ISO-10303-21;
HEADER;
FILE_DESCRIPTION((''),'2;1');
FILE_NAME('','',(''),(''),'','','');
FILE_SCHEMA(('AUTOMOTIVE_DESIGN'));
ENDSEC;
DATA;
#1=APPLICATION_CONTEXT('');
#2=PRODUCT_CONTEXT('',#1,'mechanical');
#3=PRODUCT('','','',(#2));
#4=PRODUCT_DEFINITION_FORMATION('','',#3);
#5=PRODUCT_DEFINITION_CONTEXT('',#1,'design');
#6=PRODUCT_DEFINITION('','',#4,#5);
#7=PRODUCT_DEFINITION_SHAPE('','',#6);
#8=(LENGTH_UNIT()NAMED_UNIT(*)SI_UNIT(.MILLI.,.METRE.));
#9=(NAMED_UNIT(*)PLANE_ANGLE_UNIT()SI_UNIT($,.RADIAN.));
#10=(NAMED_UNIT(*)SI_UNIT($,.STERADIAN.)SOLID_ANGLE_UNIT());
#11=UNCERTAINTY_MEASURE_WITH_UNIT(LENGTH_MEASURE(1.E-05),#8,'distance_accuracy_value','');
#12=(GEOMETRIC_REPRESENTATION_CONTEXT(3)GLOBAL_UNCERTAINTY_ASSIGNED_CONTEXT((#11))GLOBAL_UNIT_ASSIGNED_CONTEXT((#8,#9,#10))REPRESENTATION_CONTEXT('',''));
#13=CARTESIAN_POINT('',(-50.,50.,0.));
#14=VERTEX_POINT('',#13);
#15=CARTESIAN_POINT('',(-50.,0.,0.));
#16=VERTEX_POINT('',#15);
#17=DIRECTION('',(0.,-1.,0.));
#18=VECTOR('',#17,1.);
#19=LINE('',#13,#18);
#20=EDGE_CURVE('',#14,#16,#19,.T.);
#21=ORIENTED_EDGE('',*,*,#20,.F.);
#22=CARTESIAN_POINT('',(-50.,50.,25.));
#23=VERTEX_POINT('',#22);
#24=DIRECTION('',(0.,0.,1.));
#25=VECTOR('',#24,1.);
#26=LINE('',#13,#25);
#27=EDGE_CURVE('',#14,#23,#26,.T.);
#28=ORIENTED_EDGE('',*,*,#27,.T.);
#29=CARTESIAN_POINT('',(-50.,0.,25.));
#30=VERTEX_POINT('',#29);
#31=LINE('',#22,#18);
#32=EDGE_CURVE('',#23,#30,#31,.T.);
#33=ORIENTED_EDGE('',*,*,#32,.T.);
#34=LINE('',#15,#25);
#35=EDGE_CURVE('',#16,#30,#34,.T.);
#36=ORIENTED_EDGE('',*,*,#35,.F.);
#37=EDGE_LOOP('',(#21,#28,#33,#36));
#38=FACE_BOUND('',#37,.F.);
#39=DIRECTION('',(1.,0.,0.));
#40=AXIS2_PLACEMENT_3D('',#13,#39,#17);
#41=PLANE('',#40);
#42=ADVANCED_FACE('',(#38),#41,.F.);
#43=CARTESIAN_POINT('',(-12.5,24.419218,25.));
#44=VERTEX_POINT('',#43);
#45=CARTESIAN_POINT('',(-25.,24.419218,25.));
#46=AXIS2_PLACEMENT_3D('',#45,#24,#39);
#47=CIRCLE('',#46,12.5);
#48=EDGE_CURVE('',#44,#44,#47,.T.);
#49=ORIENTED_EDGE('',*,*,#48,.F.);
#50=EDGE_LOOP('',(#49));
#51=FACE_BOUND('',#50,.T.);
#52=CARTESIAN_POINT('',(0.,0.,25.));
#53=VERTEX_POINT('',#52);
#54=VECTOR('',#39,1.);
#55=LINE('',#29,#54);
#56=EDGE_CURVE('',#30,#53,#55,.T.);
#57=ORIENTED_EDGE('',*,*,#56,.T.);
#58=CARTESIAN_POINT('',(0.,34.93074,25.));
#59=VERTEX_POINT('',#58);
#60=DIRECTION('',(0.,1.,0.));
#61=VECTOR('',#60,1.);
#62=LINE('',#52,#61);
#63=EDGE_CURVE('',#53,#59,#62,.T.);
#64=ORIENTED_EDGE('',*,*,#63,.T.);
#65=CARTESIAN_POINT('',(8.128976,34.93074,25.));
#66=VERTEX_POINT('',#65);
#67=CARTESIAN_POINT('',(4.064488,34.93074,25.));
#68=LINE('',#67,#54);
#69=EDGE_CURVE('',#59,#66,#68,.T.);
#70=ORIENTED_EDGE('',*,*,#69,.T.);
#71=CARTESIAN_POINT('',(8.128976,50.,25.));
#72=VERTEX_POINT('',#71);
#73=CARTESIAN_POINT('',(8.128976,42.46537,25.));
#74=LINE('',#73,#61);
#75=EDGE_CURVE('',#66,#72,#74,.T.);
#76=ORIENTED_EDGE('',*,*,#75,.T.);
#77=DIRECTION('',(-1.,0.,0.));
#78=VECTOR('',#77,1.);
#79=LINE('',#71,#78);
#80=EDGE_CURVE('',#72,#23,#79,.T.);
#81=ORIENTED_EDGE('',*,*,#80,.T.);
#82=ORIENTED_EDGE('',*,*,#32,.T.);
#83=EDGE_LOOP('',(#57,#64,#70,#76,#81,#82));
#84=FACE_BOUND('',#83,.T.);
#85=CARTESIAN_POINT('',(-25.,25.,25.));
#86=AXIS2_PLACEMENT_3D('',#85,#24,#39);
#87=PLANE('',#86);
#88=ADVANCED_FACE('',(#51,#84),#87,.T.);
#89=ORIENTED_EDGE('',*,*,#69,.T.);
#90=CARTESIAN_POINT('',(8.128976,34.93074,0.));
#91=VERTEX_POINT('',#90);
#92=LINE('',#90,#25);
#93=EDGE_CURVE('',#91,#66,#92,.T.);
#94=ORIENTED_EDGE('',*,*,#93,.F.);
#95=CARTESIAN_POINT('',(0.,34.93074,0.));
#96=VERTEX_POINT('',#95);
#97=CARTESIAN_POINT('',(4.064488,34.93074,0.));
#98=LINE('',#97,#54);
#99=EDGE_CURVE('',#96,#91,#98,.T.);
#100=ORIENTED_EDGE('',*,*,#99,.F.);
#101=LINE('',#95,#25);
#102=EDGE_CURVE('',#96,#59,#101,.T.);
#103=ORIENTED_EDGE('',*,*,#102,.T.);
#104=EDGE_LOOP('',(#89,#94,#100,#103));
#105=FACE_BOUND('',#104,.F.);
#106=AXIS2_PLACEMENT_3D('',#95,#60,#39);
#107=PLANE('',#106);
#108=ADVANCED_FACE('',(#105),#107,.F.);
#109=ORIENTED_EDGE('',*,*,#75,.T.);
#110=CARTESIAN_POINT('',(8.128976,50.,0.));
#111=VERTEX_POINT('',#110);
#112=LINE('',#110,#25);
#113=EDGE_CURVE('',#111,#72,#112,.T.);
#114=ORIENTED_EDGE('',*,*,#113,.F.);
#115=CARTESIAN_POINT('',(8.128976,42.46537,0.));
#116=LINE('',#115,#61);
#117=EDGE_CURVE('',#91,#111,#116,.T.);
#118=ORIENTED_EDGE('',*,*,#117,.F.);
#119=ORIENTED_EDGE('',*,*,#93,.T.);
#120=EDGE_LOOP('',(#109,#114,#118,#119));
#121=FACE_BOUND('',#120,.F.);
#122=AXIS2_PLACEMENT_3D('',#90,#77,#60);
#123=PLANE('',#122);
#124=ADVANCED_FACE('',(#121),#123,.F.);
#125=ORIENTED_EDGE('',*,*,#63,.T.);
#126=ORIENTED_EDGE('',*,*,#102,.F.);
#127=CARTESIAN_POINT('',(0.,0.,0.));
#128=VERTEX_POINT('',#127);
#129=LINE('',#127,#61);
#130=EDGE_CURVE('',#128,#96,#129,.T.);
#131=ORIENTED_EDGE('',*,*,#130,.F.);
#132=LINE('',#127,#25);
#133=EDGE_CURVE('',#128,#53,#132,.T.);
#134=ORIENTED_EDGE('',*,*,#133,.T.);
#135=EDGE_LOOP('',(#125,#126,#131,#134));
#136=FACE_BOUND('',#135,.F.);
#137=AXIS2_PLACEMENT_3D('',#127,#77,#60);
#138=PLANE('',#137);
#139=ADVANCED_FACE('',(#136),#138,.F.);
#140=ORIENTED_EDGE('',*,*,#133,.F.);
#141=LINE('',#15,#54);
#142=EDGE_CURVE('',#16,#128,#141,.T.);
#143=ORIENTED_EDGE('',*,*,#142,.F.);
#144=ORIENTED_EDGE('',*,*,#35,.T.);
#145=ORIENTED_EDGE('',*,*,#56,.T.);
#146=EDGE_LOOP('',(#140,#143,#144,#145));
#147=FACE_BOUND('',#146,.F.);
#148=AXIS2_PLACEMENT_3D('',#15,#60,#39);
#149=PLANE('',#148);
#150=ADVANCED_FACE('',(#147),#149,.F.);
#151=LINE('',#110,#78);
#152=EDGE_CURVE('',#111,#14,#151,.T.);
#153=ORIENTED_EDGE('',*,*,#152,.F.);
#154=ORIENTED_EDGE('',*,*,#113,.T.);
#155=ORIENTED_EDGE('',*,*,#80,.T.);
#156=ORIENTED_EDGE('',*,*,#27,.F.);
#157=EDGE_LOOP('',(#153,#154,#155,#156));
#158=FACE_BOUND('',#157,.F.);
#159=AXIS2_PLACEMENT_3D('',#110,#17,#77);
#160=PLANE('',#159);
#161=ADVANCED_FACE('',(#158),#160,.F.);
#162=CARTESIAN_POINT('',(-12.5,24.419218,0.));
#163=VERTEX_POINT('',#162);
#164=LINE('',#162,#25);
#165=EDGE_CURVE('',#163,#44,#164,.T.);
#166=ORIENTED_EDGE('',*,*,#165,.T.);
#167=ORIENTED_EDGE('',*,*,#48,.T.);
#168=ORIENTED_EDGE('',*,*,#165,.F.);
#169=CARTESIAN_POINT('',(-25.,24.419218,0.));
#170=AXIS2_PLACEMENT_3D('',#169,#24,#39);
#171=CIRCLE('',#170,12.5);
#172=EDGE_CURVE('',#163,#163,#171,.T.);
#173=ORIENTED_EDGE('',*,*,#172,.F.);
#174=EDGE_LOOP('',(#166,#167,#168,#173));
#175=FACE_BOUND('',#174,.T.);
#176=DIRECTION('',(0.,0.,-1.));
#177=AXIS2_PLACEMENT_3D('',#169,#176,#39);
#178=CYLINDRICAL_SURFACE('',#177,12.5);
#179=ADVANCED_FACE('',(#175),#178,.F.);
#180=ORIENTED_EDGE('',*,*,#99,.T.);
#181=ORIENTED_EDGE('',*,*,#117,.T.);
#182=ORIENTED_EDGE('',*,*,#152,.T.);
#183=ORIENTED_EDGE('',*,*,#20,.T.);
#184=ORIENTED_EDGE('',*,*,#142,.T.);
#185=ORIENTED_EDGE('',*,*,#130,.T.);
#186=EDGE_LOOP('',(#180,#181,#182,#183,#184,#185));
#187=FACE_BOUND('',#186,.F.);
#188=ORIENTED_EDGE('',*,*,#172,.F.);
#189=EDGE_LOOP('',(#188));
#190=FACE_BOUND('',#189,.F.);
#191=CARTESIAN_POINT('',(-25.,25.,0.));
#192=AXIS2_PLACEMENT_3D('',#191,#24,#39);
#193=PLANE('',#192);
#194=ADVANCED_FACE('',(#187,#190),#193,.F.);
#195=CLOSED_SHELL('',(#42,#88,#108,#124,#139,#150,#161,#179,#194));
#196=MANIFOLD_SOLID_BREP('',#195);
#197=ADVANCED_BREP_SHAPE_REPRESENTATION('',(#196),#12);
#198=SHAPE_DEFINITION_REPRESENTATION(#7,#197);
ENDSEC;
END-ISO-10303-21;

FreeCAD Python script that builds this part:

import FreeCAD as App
import Part
import Sketcher
from FreeCAD import Vector


def add_polygon(sketch, points):
    """Adds a closed chain of lines whose ends are joined by coincident constraints."""
    first, n = sketch.GeometryCount, len(points)
    for a, b in zip(points, points[1:] + points[:1]):
        sketch.addGeometry(Part.LineSegment(App.Vector(*a, 0), App.Vector(*b, 0)), False)
    for i in range(n):
        sketch.addConstraint(Sketcher.Constraint("Coincident", first + i, 2, first + (i + 1) % n, 1))

doc = App.newDocument("Part")
body = doc.addObject("PartDesign::Body", "Body")

sketch1 = body.newObject("Sketcher::SketchObject", "Sketch")
sketch1.AttachmentSupport = (doc.getObject("XY_Plane"), [""])
sketch1.MapMode = "FlatFace"
add_polygon(sketch1, [(-50, 0), (0, 0), (0, 34.93074), (8.128976, 34.93074), (8.128976, 50), (-50, 50)])
sketch1.addGeometry(Part.Circle(Vector(-25, 24.419218, 0), Vector(0, 0, 1), 12.5), False)
sketch1.addConstraint(Sketcher.Constraint("Horizontal", 0))
sketch1.addConstraint(Sketcher.Constraint("Vertical", 1))
sketch1.addConstraint(Sketcher.Constraint("Horizontal", 2))
sketch1.addConstraint(Sketcher.Constraint("Vertical", 3))
sketch1.addConstraint(Sketcher.Constraint("Horizontal", 4))
sketch1.addConstraint(Sketcher.Constraint("Vertical", 5))
sketch1.addConstraint(Sketcher.Constraint("Coincident", 0, 2, -1, 1))
sketch1.addConstraint(Sketcher.Constraint("Equal", 0, 5))
sketch1.addConstraint(Sketcher.Constraint("Diameter", 6, 25.0))
sketch1.addConstraint(Sketcher.Constraint("DistanceX", 0, 1, 0, 2, 50.0))
sketch1.addConstraint(Sketcher.Constraint("DistanceX", 6, 3, -1, 1, 25.0))
sketch1.addConstraint(Sketcher.Constraint("DistanceY", 1, 1, 1, 2, 34.93074))
sketch1.addConstraint(Sketcher.Constraint("DistanceX", 2, 1, 2, 2, 8.128976))
sketch1.addConstraint(Sketcher.Constraint("DistanceY", -1, 1, 6, 3, 24.419218))
pad1 = body.newObject("PartDesign::Pad", "Pad")
pad1.Profile = sketch1
pad1.Length = 25

doc.recompute()
